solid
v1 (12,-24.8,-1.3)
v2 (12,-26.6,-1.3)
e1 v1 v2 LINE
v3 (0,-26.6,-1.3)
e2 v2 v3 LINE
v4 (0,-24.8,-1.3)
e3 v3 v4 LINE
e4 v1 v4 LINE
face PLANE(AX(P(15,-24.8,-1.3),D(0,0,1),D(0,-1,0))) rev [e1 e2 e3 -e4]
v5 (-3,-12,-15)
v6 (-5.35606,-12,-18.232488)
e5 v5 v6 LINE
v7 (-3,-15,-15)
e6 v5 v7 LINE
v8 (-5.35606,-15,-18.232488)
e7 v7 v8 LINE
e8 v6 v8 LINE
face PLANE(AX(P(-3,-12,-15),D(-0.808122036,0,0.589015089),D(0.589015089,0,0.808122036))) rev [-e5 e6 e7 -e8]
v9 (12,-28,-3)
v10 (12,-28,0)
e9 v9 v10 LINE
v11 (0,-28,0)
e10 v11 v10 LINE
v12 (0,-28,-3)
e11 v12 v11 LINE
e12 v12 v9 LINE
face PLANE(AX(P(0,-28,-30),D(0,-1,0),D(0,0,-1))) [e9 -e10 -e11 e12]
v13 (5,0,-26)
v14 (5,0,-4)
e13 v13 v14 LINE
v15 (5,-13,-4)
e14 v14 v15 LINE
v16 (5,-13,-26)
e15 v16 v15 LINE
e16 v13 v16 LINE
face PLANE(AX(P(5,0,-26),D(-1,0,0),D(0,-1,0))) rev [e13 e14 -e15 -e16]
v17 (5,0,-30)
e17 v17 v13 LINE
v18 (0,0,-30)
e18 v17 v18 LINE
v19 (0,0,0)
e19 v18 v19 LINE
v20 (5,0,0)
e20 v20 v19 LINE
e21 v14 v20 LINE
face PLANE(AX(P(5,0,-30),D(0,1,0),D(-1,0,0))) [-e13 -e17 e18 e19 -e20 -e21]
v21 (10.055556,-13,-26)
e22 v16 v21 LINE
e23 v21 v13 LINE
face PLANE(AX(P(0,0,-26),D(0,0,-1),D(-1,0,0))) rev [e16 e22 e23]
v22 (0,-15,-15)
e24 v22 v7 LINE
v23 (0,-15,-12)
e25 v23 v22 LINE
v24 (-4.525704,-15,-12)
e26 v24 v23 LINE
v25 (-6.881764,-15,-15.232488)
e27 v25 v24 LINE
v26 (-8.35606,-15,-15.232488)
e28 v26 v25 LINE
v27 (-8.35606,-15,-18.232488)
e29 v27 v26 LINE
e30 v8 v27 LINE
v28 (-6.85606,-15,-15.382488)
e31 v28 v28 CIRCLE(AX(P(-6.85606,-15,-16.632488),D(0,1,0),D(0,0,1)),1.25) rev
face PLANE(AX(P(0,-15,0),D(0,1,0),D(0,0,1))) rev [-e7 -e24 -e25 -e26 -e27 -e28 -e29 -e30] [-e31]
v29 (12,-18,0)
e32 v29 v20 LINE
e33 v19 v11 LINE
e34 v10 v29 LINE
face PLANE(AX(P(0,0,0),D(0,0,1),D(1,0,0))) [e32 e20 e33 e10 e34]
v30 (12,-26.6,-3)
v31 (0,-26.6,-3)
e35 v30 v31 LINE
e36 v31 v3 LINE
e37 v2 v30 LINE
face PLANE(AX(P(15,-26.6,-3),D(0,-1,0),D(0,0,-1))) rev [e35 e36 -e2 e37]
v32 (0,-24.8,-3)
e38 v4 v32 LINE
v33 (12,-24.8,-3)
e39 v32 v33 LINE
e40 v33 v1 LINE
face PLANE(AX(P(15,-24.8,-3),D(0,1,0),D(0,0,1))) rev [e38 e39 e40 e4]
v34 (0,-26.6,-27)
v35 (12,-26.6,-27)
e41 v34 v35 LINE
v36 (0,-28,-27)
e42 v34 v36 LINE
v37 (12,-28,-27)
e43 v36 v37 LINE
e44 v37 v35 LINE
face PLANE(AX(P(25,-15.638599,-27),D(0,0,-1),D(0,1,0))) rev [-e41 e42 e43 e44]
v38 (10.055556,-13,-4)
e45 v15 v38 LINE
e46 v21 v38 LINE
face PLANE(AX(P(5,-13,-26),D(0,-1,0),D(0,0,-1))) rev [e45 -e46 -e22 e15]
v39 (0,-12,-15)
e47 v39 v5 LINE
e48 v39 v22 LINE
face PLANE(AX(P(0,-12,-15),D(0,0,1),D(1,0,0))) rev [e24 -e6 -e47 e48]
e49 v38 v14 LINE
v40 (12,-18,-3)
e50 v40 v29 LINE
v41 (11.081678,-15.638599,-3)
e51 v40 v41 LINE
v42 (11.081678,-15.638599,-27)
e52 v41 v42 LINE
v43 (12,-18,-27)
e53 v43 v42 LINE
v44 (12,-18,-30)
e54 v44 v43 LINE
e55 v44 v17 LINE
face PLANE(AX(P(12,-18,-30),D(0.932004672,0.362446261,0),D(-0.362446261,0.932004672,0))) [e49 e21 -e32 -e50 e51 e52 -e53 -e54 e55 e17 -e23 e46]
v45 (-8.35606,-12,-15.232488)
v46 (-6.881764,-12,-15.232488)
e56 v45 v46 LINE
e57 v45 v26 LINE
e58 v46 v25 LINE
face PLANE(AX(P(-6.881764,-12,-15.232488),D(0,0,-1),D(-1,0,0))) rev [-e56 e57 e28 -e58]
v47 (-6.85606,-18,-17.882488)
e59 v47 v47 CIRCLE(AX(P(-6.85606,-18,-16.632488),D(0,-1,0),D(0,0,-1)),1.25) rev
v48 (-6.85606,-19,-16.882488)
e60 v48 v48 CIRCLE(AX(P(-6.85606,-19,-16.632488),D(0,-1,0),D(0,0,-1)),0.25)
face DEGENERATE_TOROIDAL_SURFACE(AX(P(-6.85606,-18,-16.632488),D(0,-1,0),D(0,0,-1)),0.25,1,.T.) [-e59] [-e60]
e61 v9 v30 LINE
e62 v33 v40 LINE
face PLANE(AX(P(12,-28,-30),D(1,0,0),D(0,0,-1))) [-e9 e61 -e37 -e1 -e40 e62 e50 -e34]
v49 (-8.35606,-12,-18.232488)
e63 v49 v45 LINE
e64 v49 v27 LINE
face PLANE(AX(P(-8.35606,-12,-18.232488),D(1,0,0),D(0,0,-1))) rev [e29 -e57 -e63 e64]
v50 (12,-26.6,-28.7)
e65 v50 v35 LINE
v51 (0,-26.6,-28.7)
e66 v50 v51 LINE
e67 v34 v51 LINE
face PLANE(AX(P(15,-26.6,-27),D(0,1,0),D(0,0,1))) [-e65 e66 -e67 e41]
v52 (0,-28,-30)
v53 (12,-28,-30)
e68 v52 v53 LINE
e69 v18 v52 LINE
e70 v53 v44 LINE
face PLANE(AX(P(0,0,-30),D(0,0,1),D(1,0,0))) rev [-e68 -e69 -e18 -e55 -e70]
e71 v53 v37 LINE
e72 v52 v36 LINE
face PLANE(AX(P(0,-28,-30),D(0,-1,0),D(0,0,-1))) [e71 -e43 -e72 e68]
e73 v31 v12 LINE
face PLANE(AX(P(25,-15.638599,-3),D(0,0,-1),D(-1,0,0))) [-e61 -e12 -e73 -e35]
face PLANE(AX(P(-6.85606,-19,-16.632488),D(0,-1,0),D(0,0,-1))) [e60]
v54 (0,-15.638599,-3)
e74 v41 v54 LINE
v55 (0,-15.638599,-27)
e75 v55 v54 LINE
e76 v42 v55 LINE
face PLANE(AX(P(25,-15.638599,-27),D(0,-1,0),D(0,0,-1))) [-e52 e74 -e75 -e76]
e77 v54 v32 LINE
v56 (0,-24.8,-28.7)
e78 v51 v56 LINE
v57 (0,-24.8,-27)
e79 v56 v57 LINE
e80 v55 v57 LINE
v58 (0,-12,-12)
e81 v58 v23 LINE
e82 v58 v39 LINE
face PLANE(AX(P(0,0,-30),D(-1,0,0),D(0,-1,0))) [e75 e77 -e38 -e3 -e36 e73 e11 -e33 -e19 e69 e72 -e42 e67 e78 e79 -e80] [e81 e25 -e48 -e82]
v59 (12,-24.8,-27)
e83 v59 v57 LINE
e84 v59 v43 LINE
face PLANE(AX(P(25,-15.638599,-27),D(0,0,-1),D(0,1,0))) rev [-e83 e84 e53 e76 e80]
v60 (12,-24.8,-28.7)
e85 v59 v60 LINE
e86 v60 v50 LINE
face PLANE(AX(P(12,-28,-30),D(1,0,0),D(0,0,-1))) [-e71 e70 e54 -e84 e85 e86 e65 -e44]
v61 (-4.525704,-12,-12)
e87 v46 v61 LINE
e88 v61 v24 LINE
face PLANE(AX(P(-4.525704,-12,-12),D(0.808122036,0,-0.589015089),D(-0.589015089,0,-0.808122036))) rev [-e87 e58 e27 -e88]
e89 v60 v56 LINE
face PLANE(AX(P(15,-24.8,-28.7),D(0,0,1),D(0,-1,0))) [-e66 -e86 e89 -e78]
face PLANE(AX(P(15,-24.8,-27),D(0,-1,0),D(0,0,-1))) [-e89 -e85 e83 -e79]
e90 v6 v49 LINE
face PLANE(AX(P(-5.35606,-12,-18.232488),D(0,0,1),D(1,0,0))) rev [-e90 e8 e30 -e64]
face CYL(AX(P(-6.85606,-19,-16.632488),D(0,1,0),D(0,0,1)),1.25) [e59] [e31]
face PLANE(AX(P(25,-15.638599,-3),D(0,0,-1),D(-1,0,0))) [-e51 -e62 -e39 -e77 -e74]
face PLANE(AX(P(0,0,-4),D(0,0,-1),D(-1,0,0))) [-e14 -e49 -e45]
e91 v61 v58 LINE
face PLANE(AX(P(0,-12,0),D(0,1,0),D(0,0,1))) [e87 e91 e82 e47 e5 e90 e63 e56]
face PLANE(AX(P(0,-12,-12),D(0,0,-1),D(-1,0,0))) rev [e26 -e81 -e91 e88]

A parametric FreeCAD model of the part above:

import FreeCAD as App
import Part
import Sketcher

V = App.Vector


def edges_at(feature, points):
    """Names of the edges that pass closest to the given points."""
    edges = feature.Shape.Edges
    near = lambda p: min(range(len(edges)), key=lambda i: edges[i].distToShape(Part.Vertex(*p))[0])
    return sorted({f"Edge{near(p) + 1}" for p in points})

doc = App.newDocument("Part")
params = doc.addObject("Spreadsheet::Sheet", "Params")
for row, (alias, value) in enumerate([
    ("sketch1_width", "12 mm"),
    ("sketch1_width2", "5 mm"),
    ("sketch1_height", "28 mm"),
    ("sketch1_height2", "10 mm"),
    ("pad1_length", "30 mm"),
    ("sketch2_width", "14 mm"),
    ("sketch2_height", "24 mm"),
    ("pocket1_length", "25 mm"),
    ("sketch3_width", "1.8 mm"),
    ("sketch3_height", "1.7 mm"),
    ("pocket2_length", "15 mm"),
    ("sketch4_height", "13 mm"),
    ("pocket3_length", "22 mm"),
    ("sketch5_width", "3 mm"),
    ("sketch5_length", "4 mm"),
    ("pad2_length", "3 mm"),
    ("sketch6_diameter", "2.5 mm"),
    ("pad3_length", "4 mm"),
    ("fillet_radius", "1 mm"),
], start=1):
    params.set(f"A{row}", alias)
    params.set(f"B{row}", "=" + value)
    params.setAlias(f"B{row}", alias)

body = doc.addObject("PartDesign::Body", "Body")

# Sketch on XY plane
sketch1 = doc.addObject("Sketcher::SketchObject", "Sketch")
body.addObject(sketch1)
sketch1.AttachmentSupport = (doc.XY_Plane, [""])
sketch1.MapMode = "FlatFace"
sketch1.addGeometry([
    Part.LineSegment(V(0, 0, 0), V(0, -28, 0)),  # 0
    Part.LineSegment(V(0, -28, 0), V(12, -28, 0)),  # 1
    Part.LineSegment(V(12, -28, 0), V(12, -18, 0)),  # 2
    Part.LineSegment(V(12, -18, 0), V(5, 0, 0)),  # 3
    Part.LineSegment(V(5, 0, 0), V(0, 0, 0)),  # 4
], False)
sketch1.addConstraint([
    Sketcher.Constraint("Coincident", 0, 2, 1, 1),
    Sketcher.Constraint("Coincident", 1, 2, 2, 1),
    Sketcher.Constraint("Coincident", 2, 2, 3, 1),
    Sketcher.Constraint("Coincident", 3, 2, 4, 1),
    Sketcher.Constraint("Coincident", 4, 2, 0, 1),
    Sketcher.Constraint("Vertical", 0),
    Sketcher.Constraint("Horizontal", 1),
    Sketcher.Constraint("Vertical", 2),
    Sketcher.Constraint("Horizontal", 4),
    Sketcher.Constraint("Coincident", 4, 2, -1, 1),
    Sketcher.Constraint("DistanceX", 1, 1, 1, 2, 12.0),
    Sketcher.Constraint("DistanceX", 4, 2, 4, 1, 5.0),
    Sketcher.Constraint("DistanceY", 0, 2, 0, 1, 28.0),
    Sketcher.Constraint("DistanceY", 2, 1, 2, 2, 10.0),
])
sketch1.setExpression("Constraints[10]", "Params.sketch1_width")
sketch1.setExpression("Constraints[11]", "Params.sketch1_width2")
sketch1.setExpression("Constraints[12]", "Params.sketch1_height")
sketch1.setExpression("Constraints[13]", "Params.sketch1_height2")
pad1 = doc.addObject("PartDesign::Pad", "Pad")
body.addObject(pad1)
pad1.Profile = sketch1
pad1.setExpression("Length", "Params.pad1_length")
pad1.Reversed = True

# Sketch on YZ plane
sketch2 = doc.addObject("Sketcher::SketchObject", "Sketch001")
body.addObject(sketch2)
sketch2.AttachmentSupport = (doc.YZ_Plane, [""])
sketch2.MapMode = "FlatFace"
sketch2.addGeometry([
    Part.LineSegment(V(-16, -27, 0), V(-30, -27, 0)),
    Part.LineSegment(V(-30, -27, 0), V(-30, -3, 0)),
    Part.LineSegment(V(-30, -3, 0), V(-16, -3, 0)),
    Part.LineSegment(V(-16, -3, 0), V(-16, -27, 0)),
], False)
sketch2.addConstraint([
    Sketcher.Constraint("Coincident", 0, 2, 1, 1),
    Sketcher.Constraint("Coincident", 1, 2, 2, 1),
    Sketcher.Constraint("Coincident", 2, 2, 3, 1),
    Sketcher.Constraint("Coincident", 3, 2, 0, 1),
    Sketcher.Constraint("Horizontal", 0),
    Sketcher.Constraint("Vertical", 1),
    Sketcher.Constraint("Horizontal", 2),
    Sketcher.Constraint("Vertical", 3),
    Sketcher.Constraint("DistanceX", 0, 2, 0, 1, 14.0),
    Sketcher.Constraint("DistanceY", 1, 1, 1, 2, 24.0),
    Sketcher.Constraint("DistanceY", 0, 2, -1, 1, 27.0),
    Sketcher.Constraint("DistanceX", 0, 2, -1, 1, 29.638599),
])
sketch2.setExpression("Constraints[8]", "Params.sketch2_width")
sketch2.setExpression("Constraints[9]", "Params.sketch2_height")
pocket1 = doc.addObject("PartDesign::Pocket", "Pocket")
body.addObject(pocket1)
pocket1.Profile = sketch2
pocket1.setExpression("Length", "Params.pocket1_length")
pocket1.Reversed = True

# Sketch on YZ plane
sketch3 = doc.addObject("Sketcher::SketchObject", "Sketch002")
body.addObject(sketch3)
sketch3.AttachmentSupport = (doc.YZ_Plane, [""])
sketch3.MapMode = "FlatFace"
sketch3.addGeometry([
    Part.LineSegment(V(-24.8, -3, 0), V(-26.6, -3, 0)),
    Part.LineSegment(V(-26.6, -3, 0), V(-26.6, -1.3, 0)),
    Part.LineSegment(V(-26.6, -1.3, 0), V(-24.8, -1.3, 0)),
    Part.LineSegment(V(-24.8, -1.3, 0), V(-24.8, -3, 0)),
], False)
sketch3.addConstraint([
    Sketcher.Constraint("Coincident", 0, 2, 1, 1),
    Sketcher.Constraint("Coincident", 1, 2, 2, 1),
    Sketcher.Constraint("Coincident", 2, 2, 3, 1),
    Sketcher.Constraint("Coincident", 3, 2, 0, 1),
    Sketcher.Constraint("Horizontal", 0),
    Sketcher.Constraint("Vertical", 1),
    Sketcher.Constraint("Horizontal", 2),
    Sketcher.Constraint("Vertical", 3),
    Sketcher.Constraint("DistanceX", 0, 2, 0, 1, 1.8),
    Sketcher.Constraint("DistanceY", 1, 1, 1, 2, 1.7),
    Sketcher.Constraint("DistanceY", 0, 2, -1, 1, 3.0),
    Sketcher.Constraint("DistanceX", 0, 2, -1, 1, 26.6),
])
sketch3.setExpression("Constraints[8]", "Params.sketch3_width")
sketch3.setExpression("Constraints[9]", "Params.sketch3_height")
pocket2 = doc.addObject("PartDesign::Pocket", "Pocket001")
body.addObject(pocket2)
pocket2.Profile = sketch3
pocket2.setExpression("Length", "Params.pocket2_length")
pocket2.Reversed = True
doc.recompute()

datumplane = doc.addObject("PartDesign::Plane", "DatumPlane")
body.addObject(datumplane)
datumplane.AttachmentSupport = (doc.XY_Plane, [""])
datumplane.MapMode = "FlatFace"
datumplane.AttachmentOffset = App.Placement(V(0, 0, -15), App.Rotation())
mirrored = doc.addObject("PartDesign::Mirrored", "Mirrored")
body.addObject(mirrored)
mirrored.Originals = [pocket2]
mirrored.MirrorPlane = (datumplane, [""])
body.Tip = mirrored

# Sketch on XY plane
sketch4 = doc.addObject("Sketcher::SketchObject", "Sketch003")
body.addObject(sketch4)
sketch4.AttachmentSupport = (doc.XY_Plane, [""])
sketch4.MapMode = "FlatFace"
sketch4.AttachmentOffset = App.Placement(V(0, 0, -15), App.Rotation())
sketch4.addGeometry([
    Part.LineSegment(V(5, 0, 0), V(5, -13, 0)),
    Part.LineSegment(V(5, -13, 0), V(10, -13, 0)),
    Part.LineSegment(V(10, -13, 0), V(5, 0, 0)),
], False)
sketch4.addConstraint([
    Sketcher.Constraint("Coincident", 0, 2, 1, 1),
    Sketcher.Constraint("Coincident", 1, 2, 2, 1),
    Sketcher.Constraint("Coincident", 2, 2, 0, 1),
    Sketcher.Constraint("Vertical", 0),
    Sketcher.Constraint("Horizontal", 1),
    Sketcher.Constraint("PointOnObject", 2, 2, -1),
    Sketcher.Constraint("DistanceY", 0, 2, 0, 1, 13.0),
    Sketcher.Constraint("DistanceX", -1, 1, 0, 2, 5.0),
    Sketcher.Constraint("DistanceX", 1, 1, 1, 2, 5.055556),
])
sketch4.setExpression("Constraints[6]", "Params.sketch4_height")
pocket3 = doc.addObject("PartDesign::Pocket", "Pocket002")
body.addObject(pocket3)
pocket3.Profile = sketch4
pocket3.setExpression("Length", "Params.pocket3_length")
pocket3.Midplane = True

# Sketch on XZ plane
sketch5 = doc.addObject("Sketcher::SketchObject", "Sketch004")
body.addObject(sketch5)
sketch5.AttachmentSupport = (doc.XZ_Plane, [""])
sketch5.MapMode = "FlatFace"
sketch5.AttachmentOffset = App.Placement(V(0, 0, 15), App.Rotation())
sketch5.addGeometry([
    Part.LineSegment(V(0, -15, 0), V(-3, -15, 0)),  # 0
    Part.LineSegment(V(-3, -15, 0), V(-5.4, -18.2, 0)),  # 1
    Part.LineSegment(V(-5.4, -18.2, 0), V(-8.4, -18.2, 0)),  # 2
    Part.LineSegment(V(-8.4, -18.2, 0), V(-8.4, -15.2, 0)),  # 3
    Part.LineSegment(V(-8.4, -15.2, 0), V(-6.9, -15.2, 0)),  # 4
    Part.LineSegment(V(-6.9, -15.2, 0), V(-4.5, -12, 0)),  # 5
    Part.LineSegment(V(-4.5, -12, 0), V(0, -12, 0)),  # 6
    Part.LineSegment(V(0, -12, 0), V(0, -15, 0)),  # 7
], False)
sketch5.addConstraint([
    Sketcher.Constraint("Coincident", 0, 2, 1, 1),
    Sketcher.Constraint("Coincident", 1, 2, 2, 1),
    Sketcher.Constraint("Coincident", 2, 2, 3, 1),
    Sketcher.Constraint("Coincident", 3, 2, 4, 1),
    Sketcher.Constraint("Coincident", 4, 2, 5, 1),
    Sketcher.Constraint("Coincident", 5, 2, 6, 1),
    Sketcher.Constraint("Coincident", 6, 2, 7, 1),
    Sketcher.Constraint("Coincident", 7, 2, 0, 1),
    Sketcher.Constraint("Horizontal", 0),
    Sketcher.Constraint("Horizontal", 2),
    Sketcher.Constraint("Vertical", 3),
    Sketcher.Constraint("Horizontal", 4),
    Sketcher.Constraint("Horizontal", 6),
    Sketcher.Constraint("Vertical", 7),
    Sketcher.Constraint("PointOnObject", 6, 2, -2),
    Sketcher.Constraint("Parallel", 1, 5),
    Sketcher.Constraint("Equal", 0, 2),
    Sketcher.Constraint("Equal", 2, 3),
    Sketcher.Constraint("Equal", 3, 7),
    Sketcher.Constraint("DistanceX", 0, 2, 0, 1, 3.0),
    Sketcher.Constraint("Distance", 1, 4.0),
    Sketcher.Constraint("DistanceY", 0, 2, -1, 1, 15.0),
    Sketcher.Constraint("DistanceX", 4, 1, 4, 2, 1.474296),
    Sketcher.Constraint("DistanceX", 1, 2, -1, 1, 5.35606),
])
sketch5.setExpression("Constraints[19]", "Params.sketch5_width")
sketch5.setExpression("Constraints[20]", "Params.sketch5_length")
pad2 = doc.addObject("PartDesign::Pad", "Pad001")
body.addObject(pad2)
pad2.Profile = sketch5
pad2.setExpression("Length", "Params.pad2_length")
pad2.Reversed = True

# Sketch on XZ plane
sketch6 = doc.addObject("Sketcher::SketchObject", "Sketch005")
body.addObject(sketch6)
sketch6.AttachmentSupport = (doc.XZ_Plane, [""])
sketch6.MapMode = "FlatFace"
sketch6.AttachmentOffset = App.Placement(V(0, 0, 15), App.Rotation())
sketch6.addGeometry(Part.Circle(V(-6.9, -16.6, 0), V(0, 0, 1), 1.2), False)
sketch6.addConstraint([
    Sketcher.Constraint("Diameter", 0, 2.5),
    Sketcher.Constraint("DistanceX", 0, 3, -1, 1, 6.85606),
    Sketcher.Constraint("DistanceY", 0, 3, -1, 1, 16.632488),
])
sketch6.setExpression("Constraints[0]", "Params.sketch6_diameter")
pad3 = doc.addObject("PartDesign::Pad", "Pad002")
body.addObject(pad3)
pad3.Profile = sketch6
pad3.setExpression("Length", "Params.pad3_length")
doc.recompute()

fillet = doc.addObject("PartDesign::Fillet", "Fillet")
body.addObject(fillet)
fillet.Base = (pad3, edges_at(pad3, [(-6.856, -19, -17.882)]))
fillet.setExpression("Radius", "Params.fillet_radius")

doc.recompute()
